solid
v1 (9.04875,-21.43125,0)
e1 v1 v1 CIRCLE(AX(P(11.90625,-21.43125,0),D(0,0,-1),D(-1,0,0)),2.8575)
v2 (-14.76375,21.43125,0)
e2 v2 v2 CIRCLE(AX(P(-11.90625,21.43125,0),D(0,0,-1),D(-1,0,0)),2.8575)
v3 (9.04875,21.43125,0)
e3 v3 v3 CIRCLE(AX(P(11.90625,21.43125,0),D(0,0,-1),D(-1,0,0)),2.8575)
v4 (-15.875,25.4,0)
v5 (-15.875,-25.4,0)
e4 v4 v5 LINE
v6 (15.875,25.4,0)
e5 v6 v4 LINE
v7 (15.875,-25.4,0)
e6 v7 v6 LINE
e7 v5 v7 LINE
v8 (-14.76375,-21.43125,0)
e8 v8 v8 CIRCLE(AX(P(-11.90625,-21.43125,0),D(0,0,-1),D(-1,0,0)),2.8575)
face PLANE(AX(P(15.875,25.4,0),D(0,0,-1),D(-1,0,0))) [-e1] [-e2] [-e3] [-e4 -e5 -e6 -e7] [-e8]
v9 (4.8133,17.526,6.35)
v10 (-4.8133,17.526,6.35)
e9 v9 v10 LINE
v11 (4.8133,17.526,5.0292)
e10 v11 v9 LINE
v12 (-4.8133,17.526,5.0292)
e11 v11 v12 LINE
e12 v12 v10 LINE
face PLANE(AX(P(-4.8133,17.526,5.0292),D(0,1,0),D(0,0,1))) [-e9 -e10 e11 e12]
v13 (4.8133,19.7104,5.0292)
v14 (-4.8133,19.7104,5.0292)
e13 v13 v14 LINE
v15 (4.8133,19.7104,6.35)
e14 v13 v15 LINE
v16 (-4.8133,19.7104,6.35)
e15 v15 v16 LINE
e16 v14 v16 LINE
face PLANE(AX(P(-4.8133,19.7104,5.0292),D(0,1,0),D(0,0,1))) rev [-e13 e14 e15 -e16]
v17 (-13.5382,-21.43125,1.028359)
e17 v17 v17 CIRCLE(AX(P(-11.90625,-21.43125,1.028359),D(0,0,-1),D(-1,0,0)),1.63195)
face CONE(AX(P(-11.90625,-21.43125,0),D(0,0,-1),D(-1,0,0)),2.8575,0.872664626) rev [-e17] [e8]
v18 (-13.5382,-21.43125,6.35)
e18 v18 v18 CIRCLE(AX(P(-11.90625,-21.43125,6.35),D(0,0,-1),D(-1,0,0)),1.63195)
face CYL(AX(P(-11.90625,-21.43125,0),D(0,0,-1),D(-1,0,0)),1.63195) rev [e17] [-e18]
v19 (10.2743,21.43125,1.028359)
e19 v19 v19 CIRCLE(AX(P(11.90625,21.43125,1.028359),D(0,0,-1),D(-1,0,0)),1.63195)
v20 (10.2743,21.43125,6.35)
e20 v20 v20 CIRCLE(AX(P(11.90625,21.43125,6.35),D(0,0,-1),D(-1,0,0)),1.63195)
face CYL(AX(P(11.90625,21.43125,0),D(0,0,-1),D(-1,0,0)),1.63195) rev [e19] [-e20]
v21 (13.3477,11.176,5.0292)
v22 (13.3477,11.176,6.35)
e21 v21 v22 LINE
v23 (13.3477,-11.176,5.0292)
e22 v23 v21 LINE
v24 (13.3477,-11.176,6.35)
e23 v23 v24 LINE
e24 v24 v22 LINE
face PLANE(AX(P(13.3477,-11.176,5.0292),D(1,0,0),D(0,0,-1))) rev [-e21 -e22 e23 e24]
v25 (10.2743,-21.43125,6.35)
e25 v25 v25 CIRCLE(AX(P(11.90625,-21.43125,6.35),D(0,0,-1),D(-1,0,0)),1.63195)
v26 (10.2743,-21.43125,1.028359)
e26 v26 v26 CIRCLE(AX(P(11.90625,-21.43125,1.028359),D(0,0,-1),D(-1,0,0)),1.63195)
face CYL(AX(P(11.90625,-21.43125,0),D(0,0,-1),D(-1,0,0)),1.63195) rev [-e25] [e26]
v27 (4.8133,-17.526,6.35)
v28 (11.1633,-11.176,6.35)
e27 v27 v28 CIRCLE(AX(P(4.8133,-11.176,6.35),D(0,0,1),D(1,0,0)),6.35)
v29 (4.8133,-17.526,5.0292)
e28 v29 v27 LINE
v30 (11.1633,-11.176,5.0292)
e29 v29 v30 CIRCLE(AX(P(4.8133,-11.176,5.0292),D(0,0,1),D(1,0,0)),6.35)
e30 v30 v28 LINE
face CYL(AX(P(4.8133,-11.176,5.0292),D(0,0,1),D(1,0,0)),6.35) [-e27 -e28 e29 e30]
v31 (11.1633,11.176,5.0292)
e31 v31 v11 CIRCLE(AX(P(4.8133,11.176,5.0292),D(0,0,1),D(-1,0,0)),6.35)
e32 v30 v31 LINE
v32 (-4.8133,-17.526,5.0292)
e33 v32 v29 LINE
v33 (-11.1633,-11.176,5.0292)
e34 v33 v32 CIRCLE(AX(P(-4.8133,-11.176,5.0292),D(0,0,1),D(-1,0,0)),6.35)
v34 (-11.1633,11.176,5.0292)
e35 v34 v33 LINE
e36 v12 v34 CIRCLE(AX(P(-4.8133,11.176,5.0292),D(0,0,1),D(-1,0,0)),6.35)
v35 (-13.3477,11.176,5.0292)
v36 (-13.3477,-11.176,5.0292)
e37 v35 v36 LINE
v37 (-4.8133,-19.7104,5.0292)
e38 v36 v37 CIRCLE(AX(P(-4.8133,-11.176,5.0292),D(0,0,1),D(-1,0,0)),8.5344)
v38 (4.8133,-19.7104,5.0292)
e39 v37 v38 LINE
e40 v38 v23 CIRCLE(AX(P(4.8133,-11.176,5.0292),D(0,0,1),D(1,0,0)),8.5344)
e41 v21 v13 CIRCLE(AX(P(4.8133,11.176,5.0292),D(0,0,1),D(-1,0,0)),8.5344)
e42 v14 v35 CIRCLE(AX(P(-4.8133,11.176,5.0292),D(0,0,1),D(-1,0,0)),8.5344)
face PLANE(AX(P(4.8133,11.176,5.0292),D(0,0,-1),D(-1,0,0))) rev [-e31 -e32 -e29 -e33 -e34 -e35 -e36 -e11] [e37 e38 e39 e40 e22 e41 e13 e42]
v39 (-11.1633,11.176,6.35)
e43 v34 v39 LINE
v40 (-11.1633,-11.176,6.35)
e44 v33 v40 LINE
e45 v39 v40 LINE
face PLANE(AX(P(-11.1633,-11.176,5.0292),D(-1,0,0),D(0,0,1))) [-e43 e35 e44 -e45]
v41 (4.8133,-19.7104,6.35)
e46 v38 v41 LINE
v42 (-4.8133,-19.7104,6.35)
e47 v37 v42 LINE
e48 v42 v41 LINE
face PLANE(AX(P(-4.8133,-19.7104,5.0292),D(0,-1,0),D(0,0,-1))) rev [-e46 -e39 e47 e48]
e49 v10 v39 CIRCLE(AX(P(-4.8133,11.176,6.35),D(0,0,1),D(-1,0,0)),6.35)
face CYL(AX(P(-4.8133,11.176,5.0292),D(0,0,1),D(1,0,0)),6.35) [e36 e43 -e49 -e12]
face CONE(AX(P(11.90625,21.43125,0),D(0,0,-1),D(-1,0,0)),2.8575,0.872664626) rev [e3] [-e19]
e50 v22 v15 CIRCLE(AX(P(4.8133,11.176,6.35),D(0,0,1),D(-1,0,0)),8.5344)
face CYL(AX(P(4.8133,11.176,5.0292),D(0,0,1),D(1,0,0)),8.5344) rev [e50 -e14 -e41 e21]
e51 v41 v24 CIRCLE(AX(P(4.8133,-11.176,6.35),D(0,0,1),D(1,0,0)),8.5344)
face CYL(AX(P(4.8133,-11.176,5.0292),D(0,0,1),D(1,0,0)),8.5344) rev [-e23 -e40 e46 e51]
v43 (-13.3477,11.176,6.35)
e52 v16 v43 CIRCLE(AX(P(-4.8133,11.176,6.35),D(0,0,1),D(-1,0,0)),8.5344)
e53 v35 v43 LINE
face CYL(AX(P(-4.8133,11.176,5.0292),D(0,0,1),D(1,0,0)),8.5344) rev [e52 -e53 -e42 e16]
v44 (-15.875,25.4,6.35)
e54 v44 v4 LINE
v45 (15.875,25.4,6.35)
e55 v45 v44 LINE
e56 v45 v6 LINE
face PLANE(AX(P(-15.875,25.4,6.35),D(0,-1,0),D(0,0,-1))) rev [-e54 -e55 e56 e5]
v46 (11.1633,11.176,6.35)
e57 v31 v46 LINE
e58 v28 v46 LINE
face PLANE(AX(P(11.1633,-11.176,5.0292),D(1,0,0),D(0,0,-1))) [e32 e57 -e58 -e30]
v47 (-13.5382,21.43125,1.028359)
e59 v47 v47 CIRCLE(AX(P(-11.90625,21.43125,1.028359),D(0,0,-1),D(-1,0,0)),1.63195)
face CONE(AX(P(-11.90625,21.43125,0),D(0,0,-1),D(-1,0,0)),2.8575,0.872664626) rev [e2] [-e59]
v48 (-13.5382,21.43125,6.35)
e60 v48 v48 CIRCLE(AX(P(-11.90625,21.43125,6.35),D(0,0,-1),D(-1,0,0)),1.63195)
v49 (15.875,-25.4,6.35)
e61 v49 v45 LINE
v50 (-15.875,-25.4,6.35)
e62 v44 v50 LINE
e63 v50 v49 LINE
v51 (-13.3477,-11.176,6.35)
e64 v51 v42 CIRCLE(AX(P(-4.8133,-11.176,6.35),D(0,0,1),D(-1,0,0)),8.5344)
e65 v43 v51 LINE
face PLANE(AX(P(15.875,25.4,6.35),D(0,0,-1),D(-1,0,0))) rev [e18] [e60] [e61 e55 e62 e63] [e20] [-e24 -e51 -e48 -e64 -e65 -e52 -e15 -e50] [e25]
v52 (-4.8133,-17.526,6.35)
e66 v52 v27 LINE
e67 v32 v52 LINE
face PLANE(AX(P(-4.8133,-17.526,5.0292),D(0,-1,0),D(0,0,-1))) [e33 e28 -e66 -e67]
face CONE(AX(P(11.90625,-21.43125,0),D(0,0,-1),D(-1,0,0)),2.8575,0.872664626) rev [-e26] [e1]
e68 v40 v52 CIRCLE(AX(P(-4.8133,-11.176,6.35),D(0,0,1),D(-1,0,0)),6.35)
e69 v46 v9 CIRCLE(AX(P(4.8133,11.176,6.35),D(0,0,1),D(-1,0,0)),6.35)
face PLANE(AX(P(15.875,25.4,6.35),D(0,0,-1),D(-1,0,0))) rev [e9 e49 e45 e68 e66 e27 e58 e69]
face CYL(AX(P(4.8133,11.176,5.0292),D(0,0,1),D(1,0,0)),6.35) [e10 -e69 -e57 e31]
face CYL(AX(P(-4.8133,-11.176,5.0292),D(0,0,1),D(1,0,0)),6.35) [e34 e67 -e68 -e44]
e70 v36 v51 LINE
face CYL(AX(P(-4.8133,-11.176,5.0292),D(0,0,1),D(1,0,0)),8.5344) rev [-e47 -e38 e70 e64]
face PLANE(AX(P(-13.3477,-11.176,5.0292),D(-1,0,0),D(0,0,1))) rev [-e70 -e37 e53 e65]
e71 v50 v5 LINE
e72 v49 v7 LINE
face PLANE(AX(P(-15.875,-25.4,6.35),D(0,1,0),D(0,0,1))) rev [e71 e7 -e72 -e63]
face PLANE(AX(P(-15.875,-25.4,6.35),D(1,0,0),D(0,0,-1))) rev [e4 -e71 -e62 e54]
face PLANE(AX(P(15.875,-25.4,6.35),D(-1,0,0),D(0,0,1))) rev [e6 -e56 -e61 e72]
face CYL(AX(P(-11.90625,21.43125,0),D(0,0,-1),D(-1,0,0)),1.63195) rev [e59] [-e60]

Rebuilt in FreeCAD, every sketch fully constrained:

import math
import FreeCAD as App
import Part
import Sketcher
from FreeCAD import Vector
Q = App.Units.Quantity

doc = App.newDocument("Part")
body = doc.addObject("PartDesign::Body", "Body")

sketch1 = body.newObject("Sketcher::SketchObject", "Sketch")
sketch1.AttachmentSupport = (doc.getObject("XY_Plane"), [""])
sketch1.MapMode = "FlatFace"
sketch1.addGeometry(Part.LineSegment(Vector(-15.875, 25.4, 0), Vector(-15.875, -25.4, 0)), False)
sketch1.addGeometry(Part.LineSegment(Vector(-15.875, -25.4, 0), Vector(15.875, -25.4, 0)), False)
sketch1.addGeometry(Part.LineSegment(Vector(15.875, -25.4, 0), Vector(15.875, 25.4, 0)), False)
sketch1.addGeometry(Part.LineSegment(Vector(15.875, 25.4, 0), Vector(-15.875, 25.4, 0)), False)
sketch1.addConstraint(Sketcher.Constraint("Coincident", 0, 2, 1, 1))
sketch1.addConstraint(Sketcher.Constraint("Coincident", 1, 2, 2, 1))
sketch1.addConstraint(Sketcher.Constraint("Coincident", 2, 2, 3, 1))
sketch1.addConstraint(Sketcher.Constraint("Coincident", 3, 2, 0, 1))
sketch1.addConstraint(Sketcher.Constraint("Vertical", 0))
sketch1.addConstraint(Sketcher.Constraint("Horizontal", 1))
sketch1.addConstraint(Sketcher.Constraint("Vertical", 2))
sketch1.addConstraint(Sketcher.Constraint("Horizontal", 3))
sketch1.addConstraint(Sketcher.Constraint("Symmetric", 0, 2, 2, 2, -1, 1))
sketch1.addConstraint(Sketcher.Constraint("DistanceY", 0, 2, 0, 1, Q("2 in")))
sketch1.addConstraint(Sketcher.Constraint("DistanceX", 1, 1, 1, 2, Q("1.25 in")))
pad1 = body.newObject("PartDesign::Pad", "Pad")
pad1.Profile = sketch1
pad1.Length = Q("0.25 in")

sketch2 = body.newObject("Sketcher::SketchObject", "Sketch001")
sketch2.AttachmentSupport = (doc.getObject("XY_Plane"), [""])
sketch2.MapMode = "FlatFace"
sketch2.AttachmentOffset = App.Placement(Vector(0, 0, 0.25 * 25.4), App.Rotation())
sketch2.addGeometry(Part.LineSegment(Vector(13.3477, -11.176, 0), Vector(13.3477, 11.176, 0)), False)
sketch2.addGeometry(Part.ArcOfCircle(Part.Circle(Vector(4.8133, 11.176, 0), Vector(0, 0, 1), 8.5344), math.radians(0), math.radians(90)), False)
sketch2.addGeometry(Part.LineSegment(Vector(4.8133, 19.7104, 0), Vector(-4.8133, 19.7104, 0)), False)
sketch2.addGeometry(Part.ArcOfCircle(Part.Circle(Vector(-4.8133, 11.176, 0), Vector(0, 0, 1), 8.5344), math.radians(90), math.radians(180)), False)
sketch2.addGeometry(Part.LineSegment(Vector(-13.3477, 11.176, 0), Vector(-13.3477, -11.176, 0)), False)
sketch2.addGeometry(Part.ArcOfCircle(Part.Circle(Vector(-4.8133, -11.176, 0), Vector(0, 0, 1), 8.5344), math.radians(-180), math.radians(-90)), False)
sketch2.addGeometry(Part.LineSegment(Vector(-4.8133, -19.7104, 0), Vector(4.8133, -19.7104, 0)), False)
sketch2.addGeometry(Part.ArcOfCircle(Part.Circle(Vector(4.8133, -11.176, 0), Vector(0, 0, 1), 8.5344), math.radians(-90), math.radians(0)), False)
sketch2.addGeometry(Part.LineSegment(Vector(4.8133, -17.526, 0), Vector(-4.8133, -17.526, 0)), False)
sketch2.addGeometry(Part.ArcOfCircle(Part.Circle(Vector(-4.8133, -11.176, 0), Vector(0, 0, 1), 6.35), math.radians(180), math.radians(270)), False)
sketch2.addGeometry(Part.LineSegment(Vector(-11.1633, -11.176, 0), Vector(-11.1633, 11.176, 0)), False)
sketch2.addGeometry(Part.ArcOfCircle(Part.Circle(Vector(-4.8133, 11.176, 0), Vector(0, 0, 1), 6.35), math.radians(90), math.radians(180)), False)
sketch2.addGeometry(Part.LineSegment(Vector(-4.8133, 17.526, 0), Vector(4.8133, 17.526, 0)), False)
sketch2.addGeometry(Part.ArcOfCircle(Part.Circle(Vector(4.8133, 11.176, 0), Vector(0, 0, 1), 6.35), math.radians(0), math.radians(90)), False)
sketch2.addGeometry(Part.LineSegment(Vector(11.1633, 11.176, 0), Vector(11.1633, -11.176, 0)), False)
sketch2.addGeometry(Part.ArcOfCircle(Part.Circle(Vector(4.8133, -11.176, 0), Vector(0, 0, 1), 6.35), math.radians(-90), math.radians(0)), False)
sketch2.addConstraint(Sketcher.Constraint("Tangent", 0, 2, 1, 1))
sketch2.addConstraint(Sketcher.Constraint("Tangent", 1, 2, 2, 1))
sketch2.addConstraint(Sketcher.Constraint("Tangent", 2, 2, 3, 1))
sketch2.addConstraint(Sketcher.Constraint("Tangent", 3, 2, 4, 1))
sketch2.addConstraint(Sketcher.Constraint("Tangent", 4, 2, 5, 1))
sketch2.addConstraint(Sketcher.Constraint("Tangent", 5, 2, 6, 1))
sketch2.addConstraint(Sketcher.Constraint("Tangent", 6, 2, 7, 1))
sketch2.addConstraint(Sketcher.Constraint("Tangent", 7, 2, 0, 1))
sketch2.addConstraint(Sketcher.Constraint("Tangent", 8, 2, 9, 2))
sketch2.addConstraint(Sketcher.Constraint("Tangent", 9, 1, 10, 1))
sketch2.addConstraint(Sketcher.Constraint("Tangent", 10, 2, 11, 2))
sketch2.addConstraint(Sketcher.Constraint("Tangent", 11, 1, 12, 1))
sketch2.addConstraint(Sketcher.Constraint("Tangent", 12, 2, 13, 2))
sketch2.addConstraint(Sketcher.Constraint("Tangent", 13, 1, 14, 1))
sketch2.addConstraint(Sketcher.Constraint("Tangent", 14, 2, 15, 2))
sketch2.addConstraint(Sketcher.Constraint("Tangent", 15, 1, 8, 1))
sketch2.addConstraint(Sketcher.Constraint("Vertical", 0))
sketch2.addConstraint(Sketcher.Constraint("Horizontal", 2))
sketch2.addConstraint(Sketcher.Constraint("Vertical", 4))
sketch2.addConstraint(Sketcher.Constraint("Horizontal", 6))
sketch2.addConstraint(Sketcher.Constraint("Horizontal", 8))
sketch2.addConstraint(Sketcher.Constraint("Vertical", 10))
sketch2.addConstraint(Sketcher.Constraint("Horizontal", 12))
sketch2.addConstraint(Sketcher.Constraint("Vertical", 14))
sketch2.addConstraint(Sketcher.Constraint("Coincident", 9, 3, 5, 3))
sketch2.addConstraint(Sketcher.Constraint("Coincident", 11, 3, 3, 3))
sketch2.addConstraint(Sketcher.Constraint("Coincident", 13, 3, 1, 3))
sketch2.addConstraint(Sketcher.Constraint("Equal", 1, 3))
sketch2.addConstraint(Sketcher.Constraint("Equal", 3, 5))
sketch2.addConstraint(Sketcher.Constraint("Equal", 5, 7))
sketch2.addConstraint(Sketcher.Constraint("Equal", 13, 15))
sketch2.addConstraint(Sketcher.Constraint("Symmetric", 1, 3, 5, 3, -1, 1))
sketch2.addConstraint(Sketcher.Constraint("Radius", 9, Q("0.25 in")))
sketch2.addConstraint(Sketcher.Constraint("Radius", 1, Q("0.336 in")))
sketch2.addConstraint(Sketcher.Constraint("DistanceY", 0, 1, 0, 2, Q("0.88 in")))
sketch2.addConstraint(Sketcher.Constraint("DistanceX", 2, 2, 2, 1, Q("0.379 in")))
pocket1 = body.newObject("PartDesign::Pocket", "Pocket")
pocket1.Profile = sketch2
pocket1.Length = Q("0.052 in")

sketch3 = body.newObject("Sketcher::SketchObject", "Sketch002")
sketch3.AttachmentSupport = (doc.getObject("XY_Plane"), [""])
sketch3.MapMode = "FlatFace"
sketch3.addGeometry(Part.Circle(Vector(11.90625, 21.43125, 0), Vector(0, 0, 1), 1.63195), False)
sketch3.addGeometry(Part.Circle(Vector(-11.90625, 21.43125, 0), Vector(0, 0, 1), 1.63195), False)
sketch3.addGeometry(Part.Circle(Vector(11.90625, -21.43125, 0), Vector(0, 0, 1), 1.63195), False)
sketch3.addGeometry(Part.Circle(Vector(-11.90625, -21.43125, 0), Vector(0, 0, 1), 1.63195), False)
sketch3.addConstraint(Sketcher.Constraint("Equal", 0, 1))
sketch3.addConstraint(Sketcher.Constraint("Equal", 1, 2))
sketch3.addConstraint(Sketcher.Constraint("Equal", 2, 3))
sketch3.addConstraint(Sketcher.Constraint("Symmetric", 1, 3, 2, 3, -1, 1))
sketch3.addConstraint(Sketcher.Constraint("Symmetric", 0, 3, 3, 3, -1, 1))
sketch3.addConstraint(Sketcher.Constraint("Symmetric", 0, 3, 1, 3, -2))
sketch3.addConstraint(Sketcher.Constraint("Diameter", 0, Q("0.1285 in")))
sketch3.addConstraint(Sketcher.Constraint("DistanceX", -1, 1, 0, 3, Q("0.46875 in")))
sketch3.addConstraint(Sketcher.Constraint("DistanceY", -1, 1, 0, 3, Q("0.84375 in")))
doc.recompute()
hole = body.newObject("PartDesign::Hole", "Hole")
hole.Profile = sketch3
hole.ThreadType = "None"
hole.Diameter = Q("0.1285 in")
hole.DepthType = "ThroughAll"
hole.HoleCutType = "Countersink"
hole.HoleCutDiameter = Q("0.225 in")
hole.HoleCutCountersinkAngle = 100
hole.Reversed = True

doc.recompute()
